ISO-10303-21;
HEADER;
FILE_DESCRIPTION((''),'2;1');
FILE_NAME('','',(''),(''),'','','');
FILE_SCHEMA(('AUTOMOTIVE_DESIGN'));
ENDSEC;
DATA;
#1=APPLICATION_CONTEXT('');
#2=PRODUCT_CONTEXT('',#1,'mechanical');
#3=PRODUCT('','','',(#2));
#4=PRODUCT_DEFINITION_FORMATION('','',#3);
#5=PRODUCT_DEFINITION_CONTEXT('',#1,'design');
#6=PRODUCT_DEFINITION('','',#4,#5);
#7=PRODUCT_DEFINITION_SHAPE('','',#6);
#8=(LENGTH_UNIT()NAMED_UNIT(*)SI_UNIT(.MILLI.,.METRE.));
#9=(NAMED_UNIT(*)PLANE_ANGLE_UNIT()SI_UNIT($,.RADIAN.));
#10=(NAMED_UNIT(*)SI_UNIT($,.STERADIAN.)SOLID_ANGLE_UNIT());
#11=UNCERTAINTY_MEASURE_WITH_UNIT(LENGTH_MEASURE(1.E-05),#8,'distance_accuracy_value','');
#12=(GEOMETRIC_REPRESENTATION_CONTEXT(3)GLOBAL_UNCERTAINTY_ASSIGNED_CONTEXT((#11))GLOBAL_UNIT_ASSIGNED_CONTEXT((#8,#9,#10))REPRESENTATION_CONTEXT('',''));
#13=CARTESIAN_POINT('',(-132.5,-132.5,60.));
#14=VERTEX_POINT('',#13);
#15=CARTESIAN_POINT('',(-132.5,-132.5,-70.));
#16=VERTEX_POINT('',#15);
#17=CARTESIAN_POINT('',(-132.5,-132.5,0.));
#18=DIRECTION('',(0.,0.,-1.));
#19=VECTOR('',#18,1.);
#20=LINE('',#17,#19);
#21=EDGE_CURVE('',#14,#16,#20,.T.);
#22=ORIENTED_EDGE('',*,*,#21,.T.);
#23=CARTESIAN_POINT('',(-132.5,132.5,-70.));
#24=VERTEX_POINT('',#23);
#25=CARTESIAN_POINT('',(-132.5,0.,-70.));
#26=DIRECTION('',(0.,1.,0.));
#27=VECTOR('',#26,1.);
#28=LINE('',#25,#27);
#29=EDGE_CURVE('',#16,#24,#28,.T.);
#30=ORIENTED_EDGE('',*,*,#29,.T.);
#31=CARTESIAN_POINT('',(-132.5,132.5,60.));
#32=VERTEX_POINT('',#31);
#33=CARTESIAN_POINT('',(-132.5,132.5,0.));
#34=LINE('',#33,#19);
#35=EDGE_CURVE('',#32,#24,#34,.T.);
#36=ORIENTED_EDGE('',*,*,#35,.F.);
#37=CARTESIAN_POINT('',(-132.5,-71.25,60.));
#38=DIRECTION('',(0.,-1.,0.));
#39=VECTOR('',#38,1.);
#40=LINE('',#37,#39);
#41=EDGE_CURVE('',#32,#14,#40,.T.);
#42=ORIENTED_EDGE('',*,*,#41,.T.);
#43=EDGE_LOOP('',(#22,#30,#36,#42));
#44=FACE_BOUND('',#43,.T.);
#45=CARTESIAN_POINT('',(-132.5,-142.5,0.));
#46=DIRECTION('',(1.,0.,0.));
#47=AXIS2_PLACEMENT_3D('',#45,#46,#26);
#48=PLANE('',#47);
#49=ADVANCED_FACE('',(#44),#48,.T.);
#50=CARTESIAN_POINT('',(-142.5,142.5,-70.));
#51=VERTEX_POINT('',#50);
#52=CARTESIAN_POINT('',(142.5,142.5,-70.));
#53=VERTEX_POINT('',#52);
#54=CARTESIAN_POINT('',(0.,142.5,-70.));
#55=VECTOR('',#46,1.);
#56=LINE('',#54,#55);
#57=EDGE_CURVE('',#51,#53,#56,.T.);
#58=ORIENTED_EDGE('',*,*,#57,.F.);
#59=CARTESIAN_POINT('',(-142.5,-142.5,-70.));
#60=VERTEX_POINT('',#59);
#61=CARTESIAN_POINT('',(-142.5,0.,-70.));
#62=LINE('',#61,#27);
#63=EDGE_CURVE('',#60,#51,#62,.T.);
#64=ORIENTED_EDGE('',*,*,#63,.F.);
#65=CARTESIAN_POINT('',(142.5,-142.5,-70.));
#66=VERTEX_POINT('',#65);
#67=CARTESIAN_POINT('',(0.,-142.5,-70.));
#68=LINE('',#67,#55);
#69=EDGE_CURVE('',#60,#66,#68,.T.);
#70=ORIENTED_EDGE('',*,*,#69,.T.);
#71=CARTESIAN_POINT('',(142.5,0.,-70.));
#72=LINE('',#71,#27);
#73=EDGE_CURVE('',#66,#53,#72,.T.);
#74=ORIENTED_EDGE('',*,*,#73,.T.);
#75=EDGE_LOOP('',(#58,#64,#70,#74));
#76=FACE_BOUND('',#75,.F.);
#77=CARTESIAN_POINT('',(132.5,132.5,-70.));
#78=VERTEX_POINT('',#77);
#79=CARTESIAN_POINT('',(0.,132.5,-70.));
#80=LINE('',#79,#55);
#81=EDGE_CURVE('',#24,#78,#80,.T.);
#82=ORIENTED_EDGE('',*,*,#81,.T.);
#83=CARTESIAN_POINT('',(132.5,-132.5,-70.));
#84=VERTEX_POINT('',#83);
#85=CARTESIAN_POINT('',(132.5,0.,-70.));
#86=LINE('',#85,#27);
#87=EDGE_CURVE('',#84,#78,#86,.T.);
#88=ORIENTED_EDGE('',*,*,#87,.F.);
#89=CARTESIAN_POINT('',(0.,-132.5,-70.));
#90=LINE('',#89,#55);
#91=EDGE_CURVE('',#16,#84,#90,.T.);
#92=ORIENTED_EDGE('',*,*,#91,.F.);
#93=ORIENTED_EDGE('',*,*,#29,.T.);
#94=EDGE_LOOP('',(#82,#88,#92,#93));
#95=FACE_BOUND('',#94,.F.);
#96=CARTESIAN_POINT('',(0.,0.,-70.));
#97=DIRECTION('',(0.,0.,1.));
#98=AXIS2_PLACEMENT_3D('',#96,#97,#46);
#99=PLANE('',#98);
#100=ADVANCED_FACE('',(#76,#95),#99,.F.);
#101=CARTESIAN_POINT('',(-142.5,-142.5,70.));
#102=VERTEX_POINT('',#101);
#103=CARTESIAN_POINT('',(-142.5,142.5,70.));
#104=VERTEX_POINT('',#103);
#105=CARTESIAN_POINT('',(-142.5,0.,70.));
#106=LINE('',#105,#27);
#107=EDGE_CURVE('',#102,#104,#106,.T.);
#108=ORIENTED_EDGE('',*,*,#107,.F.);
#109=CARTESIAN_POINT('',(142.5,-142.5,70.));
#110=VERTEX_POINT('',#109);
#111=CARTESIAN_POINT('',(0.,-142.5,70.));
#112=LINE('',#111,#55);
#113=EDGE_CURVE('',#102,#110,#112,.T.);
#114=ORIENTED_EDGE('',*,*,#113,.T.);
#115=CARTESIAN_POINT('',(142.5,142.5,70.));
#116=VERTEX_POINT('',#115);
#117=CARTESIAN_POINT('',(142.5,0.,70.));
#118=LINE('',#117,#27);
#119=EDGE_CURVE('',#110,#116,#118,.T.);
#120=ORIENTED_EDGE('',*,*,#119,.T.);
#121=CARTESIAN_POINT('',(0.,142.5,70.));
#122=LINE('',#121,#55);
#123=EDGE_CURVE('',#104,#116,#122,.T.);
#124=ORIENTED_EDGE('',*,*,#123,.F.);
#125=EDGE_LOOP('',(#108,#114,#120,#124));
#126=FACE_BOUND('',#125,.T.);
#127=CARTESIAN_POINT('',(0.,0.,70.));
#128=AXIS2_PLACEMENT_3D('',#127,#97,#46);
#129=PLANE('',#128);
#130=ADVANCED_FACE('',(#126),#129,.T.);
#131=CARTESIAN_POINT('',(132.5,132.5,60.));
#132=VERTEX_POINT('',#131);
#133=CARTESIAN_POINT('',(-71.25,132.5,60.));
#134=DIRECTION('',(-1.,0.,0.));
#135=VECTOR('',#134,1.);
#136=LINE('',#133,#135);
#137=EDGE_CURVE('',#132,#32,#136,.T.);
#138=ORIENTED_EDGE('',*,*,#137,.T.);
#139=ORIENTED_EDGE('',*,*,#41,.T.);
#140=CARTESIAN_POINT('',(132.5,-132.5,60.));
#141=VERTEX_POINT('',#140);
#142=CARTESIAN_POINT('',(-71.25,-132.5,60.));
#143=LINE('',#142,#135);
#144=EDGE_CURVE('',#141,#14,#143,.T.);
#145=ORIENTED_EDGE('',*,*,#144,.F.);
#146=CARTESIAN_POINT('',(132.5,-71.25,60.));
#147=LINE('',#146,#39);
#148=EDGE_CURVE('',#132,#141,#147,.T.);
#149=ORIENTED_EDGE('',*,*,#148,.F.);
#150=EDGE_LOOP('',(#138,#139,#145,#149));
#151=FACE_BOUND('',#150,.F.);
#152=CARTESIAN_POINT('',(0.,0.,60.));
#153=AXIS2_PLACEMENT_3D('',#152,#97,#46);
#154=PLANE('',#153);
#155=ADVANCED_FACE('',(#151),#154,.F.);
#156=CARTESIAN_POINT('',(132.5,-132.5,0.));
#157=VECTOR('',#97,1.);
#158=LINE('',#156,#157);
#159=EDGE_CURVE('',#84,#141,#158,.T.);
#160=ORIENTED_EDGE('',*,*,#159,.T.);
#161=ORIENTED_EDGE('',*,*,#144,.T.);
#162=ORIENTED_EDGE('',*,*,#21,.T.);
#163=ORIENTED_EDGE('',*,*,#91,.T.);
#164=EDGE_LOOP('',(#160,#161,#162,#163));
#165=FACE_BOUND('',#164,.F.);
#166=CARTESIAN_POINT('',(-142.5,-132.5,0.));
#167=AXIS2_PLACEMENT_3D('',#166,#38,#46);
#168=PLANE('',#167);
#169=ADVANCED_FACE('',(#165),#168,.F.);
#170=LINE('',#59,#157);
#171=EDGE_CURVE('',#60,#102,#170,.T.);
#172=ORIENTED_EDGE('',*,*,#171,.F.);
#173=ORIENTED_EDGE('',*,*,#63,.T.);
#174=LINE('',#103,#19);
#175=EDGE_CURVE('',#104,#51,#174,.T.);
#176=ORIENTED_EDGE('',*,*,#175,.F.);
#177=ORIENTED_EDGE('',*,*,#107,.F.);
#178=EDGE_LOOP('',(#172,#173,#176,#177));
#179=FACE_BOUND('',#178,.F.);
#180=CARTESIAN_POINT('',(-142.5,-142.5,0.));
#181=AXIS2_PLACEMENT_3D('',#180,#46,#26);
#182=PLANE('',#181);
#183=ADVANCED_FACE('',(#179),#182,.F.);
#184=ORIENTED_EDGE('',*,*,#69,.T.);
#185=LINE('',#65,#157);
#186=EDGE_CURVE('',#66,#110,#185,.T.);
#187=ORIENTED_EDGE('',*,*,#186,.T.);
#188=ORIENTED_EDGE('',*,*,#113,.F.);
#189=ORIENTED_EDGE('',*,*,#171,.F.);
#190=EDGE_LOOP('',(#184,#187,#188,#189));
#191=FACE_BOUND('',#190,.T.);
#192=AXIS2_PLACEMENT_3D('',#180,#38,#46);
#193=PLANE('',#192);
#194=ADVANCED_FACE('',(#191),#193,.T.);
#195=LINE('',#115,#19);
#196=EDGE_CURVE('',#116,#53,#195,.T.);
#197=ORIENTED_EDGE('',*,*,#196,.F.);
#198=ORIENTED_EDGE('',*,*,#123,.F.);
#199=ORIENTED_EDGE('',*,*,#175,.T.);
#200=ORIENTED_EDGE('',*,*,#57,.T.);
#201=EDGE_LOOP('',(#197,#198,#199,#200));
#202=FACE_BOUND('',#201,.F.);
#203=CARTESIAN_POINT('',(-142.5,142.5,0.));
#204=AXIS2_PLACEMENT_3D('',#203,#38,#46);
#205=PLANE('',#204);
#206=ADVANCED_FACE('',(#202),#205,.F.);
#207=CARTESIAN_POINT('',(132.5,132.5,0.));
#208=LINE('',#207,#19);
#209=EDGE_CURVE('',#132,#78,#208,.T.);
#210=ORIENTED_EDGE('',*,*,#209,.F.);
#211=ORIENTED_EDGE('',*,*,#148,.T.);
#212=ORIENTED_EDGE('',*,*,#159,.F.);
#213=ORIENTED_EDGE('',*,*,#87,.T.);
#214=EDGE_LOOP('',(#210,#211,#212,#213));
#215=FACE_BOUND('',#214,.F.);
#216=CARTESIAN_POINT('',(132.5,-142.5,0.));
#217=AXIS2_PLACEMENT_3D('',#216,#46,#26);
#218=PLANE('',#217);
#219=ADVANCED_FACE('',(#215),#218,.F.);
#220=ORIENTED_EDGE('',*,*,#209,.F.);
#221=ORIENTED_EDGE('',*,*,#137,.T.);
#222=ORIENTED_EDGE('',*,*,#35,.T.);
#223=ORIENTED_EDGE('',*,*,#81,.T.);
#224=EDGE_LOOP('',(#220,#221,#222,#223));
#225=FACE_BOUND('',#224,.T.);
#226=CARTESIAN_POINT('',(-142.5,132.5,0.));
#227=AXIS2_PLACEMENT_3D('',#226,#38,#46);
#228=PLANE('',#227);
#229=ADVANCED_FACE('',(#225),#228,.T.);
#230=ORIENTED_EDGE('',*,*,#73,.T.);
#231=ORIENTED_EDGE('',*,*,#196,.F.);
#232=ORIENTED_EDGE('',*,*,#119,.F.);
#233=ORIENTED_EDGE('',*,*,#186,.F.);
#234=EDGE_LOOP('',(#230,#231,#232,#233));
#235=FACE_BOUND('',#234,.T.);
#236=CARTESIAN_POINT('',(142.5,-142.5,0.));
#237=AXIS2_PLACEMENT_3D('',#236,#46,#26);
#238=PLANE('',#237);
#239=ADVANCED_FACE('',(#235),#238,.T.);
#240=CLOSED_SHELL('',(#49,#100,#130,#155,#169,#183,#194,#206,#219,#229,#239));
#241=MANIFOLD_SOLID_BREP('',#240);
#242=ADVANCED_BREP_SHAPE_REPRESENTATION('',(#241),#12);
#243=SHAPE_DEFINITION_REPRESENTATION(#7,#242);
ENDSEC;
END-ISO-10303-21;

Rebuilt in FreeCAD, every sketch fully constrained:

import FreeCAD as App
import Part
import Sketcher

V = App.Vector
Q = App.Units.Quantity


def faces_at(feature, points):
    """Names of the faces that lie closest to the given points."""
    faces = feature.Shape.Faces
    near = lambda p: min(range(len(faces)), key=lambda i: faces[i].distToShape(Part.Vertex(*p))[0])
    return sorted({f"Face{near(p) + 1}" for p in points})

doc = App.newDocument("Part")
body = doc.addObject("PartDesign::Body", "Body")

# Sketch on XY plane
sketch1 = doc.addObject("Sketcher::SketchObject", "Sketch")
body.addObject(sketch1)
sketch1.AttachmentSupport = (doc.XY_Plane, [""])
sketch1.MapMode = "FlatFace"
sketch1.addGeometry([
    Part.LineSegment(V(-142.5, 142.5, 0), V(-142.5, -142.5, 0)),
    Part.LineSegment(V(-142.5, -142.5, 0), V(142.5, -142.5, 0)),
    Part.LineSegment(V(142.5, -142.5, 0), V(142.5, 142.5, 0)),
    Part.LineSegment(V(142.5, 142.5, 0), V(-142.5, 142.5, 0)),
], False)
sketch1.addConstraint([
    Sketcher.Constraint("Coincident", 0, 2, 1, 1),
    Sketcher.Constraint("Coincident", 1, 2, 2, 1),
    Sketcher.Constraint("Coincident", 2, 2, 3, 1),
    Sketcher.Constraint("Coincident", 3, 2, 0, 1),
    Sketcher.Constraint("Vertical", 0),
    Sketcher.Constraint("Horizontal", 1),
    Sketcher.Constraint("Vertical", 2),
    Sketcher.Constraint("Horizontal", 3),
    Sketcher.Constraint("Symmetric", 0, 2, 2, 2, -1, 1),
    Sketcher.Constraint("Equal", 3, 0),
    Sketcher.Constraint("DistanceX", 1, 1, 1, 2, Q("285 mm")),
])
pad1 = doc.addObject("PartDesign::Pad", "Pad")
body.addObject(pad1)
pad1.Profile = sketch1
pad1.Length = 140
pad1.Midplane = True
doc.recompute()

thickness = doc.addObject("PartDesign::Thickness", "Thickness")
body.addObject(thickness)
thickness.Base = (pad1, faces_at(pad1, [(0, 0, -70)]))
thickness.Value = 10
thickness.Reversed = True
thickness.Join = "Arc"

doc.recompute()
